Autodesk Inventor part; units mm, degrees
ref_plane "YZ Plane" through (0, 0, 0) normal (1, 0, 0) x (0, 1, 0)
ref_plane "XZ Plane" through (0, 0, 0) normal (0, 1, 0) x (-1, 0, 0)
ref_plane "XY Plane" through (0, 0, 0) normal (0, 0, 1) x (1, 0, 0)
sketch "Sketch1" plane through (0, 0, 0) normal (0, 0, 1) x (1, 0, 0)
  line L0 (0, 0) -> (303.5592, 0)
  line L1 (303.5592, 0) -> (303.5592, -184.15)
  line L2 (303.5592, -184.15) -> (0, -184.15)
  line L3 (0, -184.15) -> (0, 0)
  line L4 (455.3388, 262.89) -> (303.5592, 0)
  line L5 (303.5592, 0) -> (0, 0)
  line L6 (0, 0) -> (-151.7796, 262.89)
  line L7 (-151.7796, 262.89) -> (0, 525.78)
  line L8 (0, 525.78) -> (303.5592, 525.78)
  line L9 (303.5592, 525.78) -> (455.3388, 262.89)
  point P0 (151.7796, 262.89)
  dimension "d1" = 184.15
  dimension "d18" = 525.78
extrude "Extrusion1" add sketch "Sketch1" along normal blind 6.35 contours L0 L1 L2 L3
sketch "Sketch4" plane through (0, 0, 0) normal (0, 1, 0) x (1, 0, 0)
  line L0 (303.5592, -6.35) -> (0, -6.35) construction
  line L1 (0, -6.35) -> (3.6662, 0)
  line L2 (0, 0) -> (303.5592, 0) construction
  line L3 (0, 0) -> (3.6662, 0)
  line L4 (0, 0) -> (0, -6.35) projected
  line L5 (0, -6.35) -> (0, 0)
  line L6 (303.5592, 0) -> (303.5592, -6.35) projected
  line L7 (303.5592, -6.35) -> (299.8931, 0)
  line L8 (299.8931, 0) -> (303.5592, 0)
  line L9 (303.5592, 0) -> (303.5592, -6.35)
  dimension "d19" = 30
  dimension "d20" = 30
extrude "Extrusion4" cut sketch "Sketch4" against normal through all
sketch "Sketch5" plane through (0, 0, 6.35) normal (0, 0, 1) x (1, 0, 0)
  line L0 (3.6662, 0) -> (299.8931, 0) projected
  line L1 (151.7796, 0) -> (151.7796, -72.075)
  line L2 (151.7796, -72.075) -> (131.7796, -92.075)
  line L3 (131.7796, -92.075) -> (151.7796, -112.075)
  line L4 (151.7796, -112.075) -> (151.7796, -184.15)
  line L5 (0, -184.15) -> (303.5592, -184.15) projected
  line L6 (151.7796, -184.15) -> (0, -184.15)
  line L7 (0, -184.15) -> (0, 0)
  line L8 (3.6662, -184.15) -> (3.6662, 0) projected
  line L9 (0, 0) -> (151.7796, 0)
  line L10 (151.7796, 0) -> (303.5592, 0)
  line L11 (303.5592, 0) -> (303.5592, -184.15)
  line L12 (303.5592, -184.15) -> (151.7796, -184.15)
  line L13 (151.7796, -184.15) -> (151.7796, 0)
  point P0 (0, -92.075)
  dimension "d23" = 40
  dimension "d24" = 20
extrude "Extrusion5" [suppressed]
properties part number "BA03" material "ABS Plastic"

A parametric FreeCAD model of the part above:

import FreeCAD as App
import Part
import Sketcher

V = App.Vector
Q = App.Units.Quantity


def add_polygon(sketch, points):
    """Adds a closed chain of lines whose ends are joined by coincident constraints."""
    first, n = sketch.GeometryCount, len(points)
    for a, b in zip(points, points[1:] + points[:1]):
        sketch.addGeometry(Part.LineSegment(App.Vector(*a, 0), App.Vector(*b, 0)), False)
    for i in range(n):
        sketch.addConstraint(Sketcher.Constraint("Coincident", first + i, 2, first + (i + 1) % n, 1))

doc = App.newDocument("Part")
body = doc.addObject("PartDesign::Body", "Body")

# Sketch on XY plane
sketch1 = body.newObject("Sketcher::SketchObject", "Sketch")
sketch1.AttachmentSupport = (doc.getObject("XY_Plane"), [""])
sketch1.MapMode = "FlatFace"
add_polygon(sketch1, [(304, 0), (0, 0), (0, -184), (304, -184)])  # lines 0-3
sketch1.addConstraint([
    Sketcher.Constraint("Horizontal", 0),
    Sketcher.Constraint("Vertical", 1),
    Sketcher.Constraint("Horizontal", 2),
    Sketcher.Constraint("Vertical", 3),
    Sketcher.Constraint("Coincident", 0, 2, -1, 1),
    Sketcher.Constraint("DistanceY", 1, 2, 1, 1, Q("7.25 in")),
    Sketcher.Constraint("DistanceX", 0, 2, 0, 1, 303.5592),
])
pad1 = body.newObject("PartDesign::Pad", "Pad")
pad1.Profile = sketch1
pad1.Length = Q("0.25 in")

# Sketch on XZ plane
sketch2 = body.newObject("Sketcher::SketchObject", "Sketch001")
sketch2.AttachmentSupport = (doc.getObject("XZ_Plane"), [""])
sketch2.MapMode = "FlatFace"
add_polygon(sketch2, [(0, 0), (0, 6.3), (3.7, 0)])  # lines 0-2
add_polygon(sketch2, [(303.6, 6.3), (303.6, 0), (299.9, 0)])  # lines 3-5
sketch2.addConstraint([
    Sketcher.Constraint("Vertical", 0),
    Sketcher.Constraint("Horizontal", 2),
    Sketcher.Constraint("Vertical", 3),
    Sketcher.Constraint("Horizontal", 4),
    Sketcher.Constraint("Coincident", 2, 2, -1, 1),
    Sketcher.Constraint("PointOnObject", 3, 2, -1),
    Sketcher.Constraint("Horizontal", 0, 2, 5, 2),
    Sketcher.Constraint("Equal", 2, 4),
    Sketcher.Constraint("Angle", 1, Q("-59.9998 deg")),
    Sketcher.Constraint("DistanceY", 0, 1, 0, 2, Q("0.25 in")),
    Sketcher.Constraint("DistanceX", 1, 2, 3, 2, Q("11.8068 in")),
])
pocket1 = body.newObject("PartDesign::Pocket", "Pocket")
pocket1.Profile = sketch2
pocket1.Type = "ThroughAll"
pocket1.Reversed = True

doc.recompute()
